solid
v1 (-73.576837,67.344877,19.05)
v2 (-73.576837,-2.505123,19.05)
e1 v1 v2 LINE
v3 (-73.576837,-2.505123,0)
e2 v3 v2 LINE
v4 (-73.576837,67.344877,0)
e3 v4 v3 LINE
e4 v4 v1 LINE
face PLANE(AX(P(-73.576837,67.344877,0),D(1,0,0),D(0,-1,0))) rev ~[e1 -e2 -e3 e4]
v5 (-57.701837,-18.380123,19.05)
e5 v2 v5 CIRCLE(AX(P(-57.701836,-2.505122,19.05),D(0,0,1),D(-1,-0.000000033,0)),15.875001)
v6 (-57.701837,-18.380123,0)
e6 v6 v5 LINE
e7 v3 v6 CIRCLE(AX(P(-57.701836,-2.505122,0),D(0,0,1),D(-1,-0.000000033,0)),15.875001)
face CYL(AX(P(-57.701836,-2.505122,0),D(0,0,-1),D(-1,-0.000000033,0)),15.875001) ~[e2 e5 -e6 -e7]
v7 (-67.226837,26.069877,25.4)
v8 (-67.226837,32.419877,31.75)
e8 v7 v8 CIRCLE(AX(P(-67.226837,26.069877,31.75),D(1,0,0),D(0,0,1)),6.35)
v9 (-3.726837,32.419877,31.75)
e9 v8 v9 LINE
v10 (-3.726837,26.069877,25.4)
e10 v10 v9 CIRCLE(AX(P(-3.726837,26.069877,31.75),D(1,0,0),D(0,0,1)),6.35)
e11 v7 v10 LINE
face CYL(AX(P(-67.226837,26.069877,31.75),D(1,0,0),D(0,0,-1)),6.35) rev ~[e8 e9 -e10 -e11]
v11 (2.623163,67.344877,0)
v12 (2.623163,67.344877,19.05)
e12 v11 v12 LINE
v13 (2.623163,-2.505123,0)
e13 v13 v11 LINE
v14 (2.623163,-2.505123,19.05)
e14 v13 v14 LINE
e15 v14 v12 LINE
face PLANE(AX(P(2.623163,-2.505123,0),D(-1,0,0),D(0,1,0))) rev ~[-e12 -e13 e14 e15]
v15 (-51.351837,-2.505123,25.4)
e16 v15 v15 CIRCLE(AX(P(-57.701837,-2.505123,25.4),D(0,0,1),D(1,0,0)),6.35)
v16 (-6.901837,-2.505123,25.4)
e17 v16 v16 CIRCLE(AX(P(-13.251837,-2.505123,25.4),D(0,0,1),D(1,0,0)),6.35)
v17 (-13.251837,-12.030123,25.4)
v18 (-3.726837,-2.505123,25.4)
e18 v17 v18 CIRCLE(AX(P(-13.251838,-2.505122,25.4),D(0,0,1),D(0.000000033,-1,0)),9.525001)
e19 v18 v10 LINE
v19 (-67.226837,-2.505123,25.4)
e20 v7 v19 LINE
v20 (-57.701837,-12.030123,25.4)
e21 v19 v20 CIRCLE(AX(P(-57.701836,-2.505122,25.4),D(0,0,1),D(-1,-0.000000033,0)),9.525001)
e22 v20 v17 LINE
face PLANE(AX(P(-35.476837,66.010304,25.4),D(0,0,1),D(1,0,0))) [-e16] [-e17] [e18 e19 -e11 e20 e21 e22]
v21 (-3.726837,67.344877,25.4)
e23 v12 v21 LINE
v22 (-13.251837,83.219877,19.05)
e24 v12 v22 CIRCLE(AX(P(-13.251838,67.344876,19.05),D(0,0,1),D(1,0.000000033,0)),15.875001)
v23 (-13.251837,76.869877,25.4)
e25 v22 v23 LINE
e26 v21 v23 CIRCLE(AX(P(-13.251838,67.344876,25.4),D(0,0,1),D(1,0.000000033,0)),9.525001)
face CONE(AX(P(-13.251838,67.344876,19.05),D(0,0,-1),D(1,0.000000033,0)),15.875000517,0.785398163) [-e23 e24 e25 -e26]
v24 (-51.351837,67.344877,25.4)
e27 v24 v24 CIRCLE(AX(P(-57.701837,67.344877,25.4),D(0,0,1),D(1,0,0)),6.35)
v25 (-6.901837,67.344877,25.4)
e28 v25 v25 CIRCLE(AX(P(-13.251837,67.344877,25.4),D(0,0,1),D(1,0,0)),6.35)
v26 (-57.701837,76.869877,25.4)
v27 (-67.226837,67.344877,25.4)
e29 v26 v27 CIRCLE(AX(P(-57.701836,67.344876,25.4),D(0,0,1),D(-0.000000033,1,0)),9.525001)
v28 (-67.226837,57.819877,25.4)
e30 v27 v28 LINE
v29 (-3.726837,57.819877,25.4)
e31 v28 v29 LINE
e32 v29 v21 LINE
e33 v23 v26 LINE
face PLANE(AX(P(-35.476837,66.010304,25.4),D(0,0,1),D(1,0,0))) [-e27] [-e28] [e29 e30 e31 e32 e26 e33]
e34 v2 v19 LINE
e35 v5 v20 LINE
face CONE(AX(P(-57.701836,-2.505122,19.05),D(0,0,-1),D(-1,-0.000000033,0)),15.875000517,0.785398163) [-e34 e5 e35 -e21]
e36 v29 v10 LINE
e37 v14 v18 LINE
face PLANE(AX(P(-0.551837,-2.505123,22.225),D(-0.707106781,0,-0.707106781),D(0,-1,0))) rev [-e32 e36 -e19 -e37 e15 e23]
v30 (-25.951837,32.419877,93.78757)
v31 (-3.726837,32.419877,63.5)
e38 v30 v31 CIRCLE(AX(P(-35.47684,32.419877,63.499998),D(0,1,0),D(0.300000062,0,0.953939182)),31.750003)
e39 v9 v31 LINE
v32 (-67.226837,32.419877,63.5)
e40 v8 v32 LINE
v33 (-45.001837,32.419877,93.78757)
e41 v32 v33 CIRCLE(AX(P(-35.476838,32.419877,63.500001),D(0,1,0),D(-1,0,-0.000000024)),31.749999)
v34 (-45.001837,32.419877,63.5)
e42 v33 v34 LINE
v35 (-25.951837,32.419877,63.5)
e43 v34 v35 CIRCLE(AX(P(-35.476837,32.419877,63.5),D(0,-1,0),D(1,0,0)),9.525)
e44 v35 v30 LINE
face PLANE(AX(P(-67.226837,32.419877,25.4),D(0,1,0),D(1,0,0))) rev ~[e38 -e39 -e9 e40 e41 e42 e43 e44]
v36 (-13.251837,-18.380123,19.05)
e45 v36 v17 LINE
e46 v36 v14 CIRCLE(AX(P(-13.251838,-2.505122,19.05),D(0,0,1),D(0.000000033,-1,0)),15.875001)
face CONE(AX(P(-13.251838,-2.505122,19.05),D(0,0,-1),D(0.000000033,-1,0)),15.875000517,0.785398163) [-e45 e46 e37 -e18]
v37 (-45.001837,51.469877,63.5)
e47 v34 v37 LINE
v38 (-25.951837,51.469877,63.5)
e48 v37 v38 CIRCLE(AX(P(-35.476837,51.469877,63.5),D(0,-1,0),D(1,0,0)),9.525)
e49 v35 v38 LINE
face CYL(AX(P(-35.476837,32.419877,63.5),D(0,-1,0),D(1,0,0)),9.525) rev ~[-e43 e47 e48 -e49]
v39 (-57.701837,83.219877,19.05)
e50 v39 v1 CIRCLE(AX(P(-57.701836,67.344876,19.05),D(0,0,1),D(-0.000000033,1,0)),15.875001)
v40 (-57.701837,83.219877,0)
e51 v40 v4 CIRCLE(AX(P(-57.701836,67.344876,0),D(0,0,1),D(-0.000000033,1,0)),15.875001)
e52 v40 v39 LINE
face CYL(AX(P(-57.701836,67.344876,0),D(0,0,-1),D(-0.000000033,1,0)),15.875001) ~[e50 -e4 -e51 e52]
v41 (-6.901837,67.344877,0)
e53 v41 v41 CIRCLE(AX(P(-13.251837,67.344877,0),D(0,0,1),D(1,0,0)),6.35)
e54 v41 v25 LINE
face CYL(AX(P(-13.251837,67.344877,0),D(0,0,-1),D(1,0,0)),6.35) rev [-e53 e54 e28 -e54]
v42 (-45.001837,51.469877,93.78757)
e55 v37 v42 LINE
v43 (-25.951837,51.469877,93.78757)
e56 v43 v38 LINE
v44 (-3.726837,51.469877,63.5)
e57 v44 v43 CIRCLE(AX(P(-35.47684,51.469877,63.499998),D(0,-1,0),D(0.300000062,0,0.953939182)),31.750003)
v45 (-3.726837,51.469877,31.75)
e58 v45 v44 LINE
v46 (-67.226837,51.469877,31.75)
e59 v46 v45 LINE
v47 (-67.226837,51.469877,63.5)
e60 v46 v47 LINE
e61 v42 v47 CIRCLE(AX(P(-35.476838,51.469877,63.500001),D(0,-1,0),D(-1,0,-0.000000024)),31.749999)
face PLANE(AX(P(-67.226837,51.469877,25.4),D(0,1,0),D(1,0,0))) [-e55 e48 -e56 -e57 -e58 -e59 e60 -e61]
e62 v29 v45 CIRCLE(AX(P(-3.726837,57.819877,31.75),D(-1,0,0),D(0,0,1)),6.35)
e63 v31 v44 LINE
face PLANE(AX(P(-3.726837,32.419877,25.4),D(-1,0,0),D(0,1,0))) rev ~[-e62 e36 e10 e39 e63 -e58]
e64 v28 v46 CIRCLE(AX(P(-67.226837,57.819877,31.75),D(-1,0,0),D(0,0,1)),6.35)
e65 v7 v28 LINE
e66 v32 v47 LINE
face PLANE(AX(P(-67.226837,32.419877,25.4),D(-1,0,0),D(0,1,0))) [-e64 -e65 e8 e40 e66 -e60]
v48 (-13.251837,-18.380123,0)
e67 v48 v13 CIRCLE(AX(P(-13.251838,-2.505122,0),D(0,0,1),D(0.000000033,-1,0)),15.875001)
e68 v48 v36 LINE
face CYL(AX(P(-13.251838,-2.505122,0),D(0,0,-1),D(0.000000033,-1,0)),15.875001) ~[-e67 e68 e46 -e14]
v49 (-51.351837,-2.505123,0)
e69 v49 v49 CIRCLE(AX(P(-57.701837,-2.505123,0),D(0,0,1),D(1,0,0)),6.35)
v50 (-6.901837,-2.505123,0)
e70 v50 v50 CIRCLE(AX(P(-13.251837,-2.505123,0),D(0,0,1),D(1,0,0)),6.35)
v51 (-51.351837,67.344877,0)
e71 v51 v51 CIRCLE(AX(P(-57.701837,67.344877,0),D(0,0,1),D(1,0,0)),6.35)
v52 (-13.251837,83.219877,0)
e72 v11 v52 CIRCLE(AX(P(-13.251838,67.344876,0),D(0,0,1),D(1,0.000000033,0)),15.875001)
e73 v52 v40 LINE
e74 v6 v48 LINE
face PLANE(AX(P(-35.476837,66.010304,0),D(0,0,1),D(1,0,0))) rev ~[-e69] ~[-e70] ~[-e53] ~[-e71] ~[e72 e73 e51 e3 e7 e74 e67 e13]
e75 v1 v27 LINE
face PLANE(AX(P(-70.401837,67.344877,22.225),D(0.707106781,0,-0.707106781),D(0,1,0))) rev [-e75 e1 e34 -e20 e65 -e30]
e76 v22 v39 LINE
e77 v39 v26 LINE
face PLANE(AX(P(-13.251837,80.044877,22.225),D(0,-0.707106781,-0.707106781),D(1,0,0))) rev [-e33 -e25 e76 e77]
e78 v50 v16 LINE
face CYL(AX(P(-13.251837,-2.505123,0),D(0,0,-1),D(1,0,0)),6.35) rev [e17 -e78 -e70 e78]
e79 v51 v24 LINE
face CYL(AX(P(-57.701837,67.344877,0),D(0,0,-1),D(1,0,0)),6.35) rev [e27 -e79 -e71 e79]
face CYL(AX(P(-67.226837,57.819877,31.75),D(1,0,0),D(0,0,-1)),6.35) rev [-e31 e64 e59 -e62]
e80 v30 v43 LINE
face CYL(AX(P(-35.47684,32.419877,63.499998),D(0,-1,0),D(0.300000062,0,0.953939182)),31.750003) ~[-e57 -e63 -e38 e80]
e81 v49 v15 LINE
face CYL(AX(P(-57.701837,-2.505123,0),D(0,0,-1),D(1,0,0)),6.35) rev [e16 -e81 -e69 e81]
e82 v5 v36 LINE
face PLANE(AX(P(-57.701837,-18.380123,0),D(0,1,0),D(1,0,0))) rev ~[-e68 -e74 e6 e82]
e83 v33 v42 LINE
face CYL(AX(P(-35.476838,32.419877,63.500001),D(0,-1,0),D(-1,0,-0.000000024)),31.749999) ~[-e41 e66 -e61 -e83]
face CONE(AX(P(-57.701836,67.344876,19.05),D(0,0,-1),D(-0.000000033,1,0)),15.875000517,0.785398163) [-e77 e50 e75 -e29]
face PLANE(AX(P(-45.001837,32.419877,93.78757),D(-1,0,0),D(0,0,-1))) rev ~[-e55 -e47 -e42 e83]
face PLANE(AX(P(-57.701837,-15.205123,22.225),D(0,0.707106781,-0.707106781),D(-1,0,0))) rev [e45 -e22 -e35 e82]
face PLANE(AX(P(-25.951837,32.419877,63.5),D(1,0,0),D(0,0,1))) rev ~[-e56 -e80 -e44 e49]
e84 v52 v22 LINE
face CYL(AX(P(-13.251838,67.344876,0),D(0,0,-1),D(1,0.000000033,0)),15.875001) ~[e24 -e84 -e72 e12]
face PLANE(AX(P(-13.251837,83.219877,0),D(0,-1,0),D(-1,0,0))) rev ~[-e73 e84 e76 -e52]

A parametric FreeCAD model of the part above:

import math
import FreeCAD as App
import Part
import Sketcher
from FreeCAD import Vector
Q = App.Units.Quantity


def edges_at(feature, points):
    """Names of the edges that pass closest to the given points."""
    edges = feature.Shape.Edges
    near = lambda p: min(range(len(edges)), key=lambda i: edges[i].distToShape(Part.Vertex(*p))[0])
    return sorted({f"Edge{near(p) + 1}" for p in points})

doc = App.newDocument("Part")
params = doc.addObject("Spreadsheet::Sheet", "Params")
for row, (alias, value) in enumerate([
    ("sketch1_diameter", "0.5 in"),
    ("sketch1_radius", "0.625 in"),
    ("sketch1_width", "1.75 in"),
    ("sketch1_height", "2.75 in"),
    ("pad1_length", "1 in"),
    ("chamfer_size", "0.25 in"),
    ("sketch2_width", "2.5 in"),
    ("sketch2_height", "0.75 in"),
    ("pad2_length", "3.75 in"),
    ("sketch3_radius", "1.2500001 in"),
    ("sketch3_radius2", "0.375 in"),
    ("sketch3_height", "2.25 in"),
    ("pocket1_length", "1 in"),
    ("fillet_radius", "0.25 in"),
], start=1):
    params.set(f"A{row}", alias)
    params.set(f"B{row}", "=" + value)
    params.setAlias(f"B{row}", alias)

body = doc.addObject("PartDesign::Body", "Body")

sketch1 = body.newObject("Sketcher::SketchObject", "Sketch")
sketch1.AttachmentSupport = (doc.getObject("XY_Plane"), [""])
sketch1.MapMode = "FlatFace"
sketch1.addGeometry([
    Part.LineSegment(Vector(-13.251837, 83.219877, 0), Vector(-57.701837, 83.219877, 0)),
    Part.ArcOfCircle(Part.Circle(Vector(-57.701836, 67.344876, 0), Vector(0, 0, 1), 15.875001), math.radians(90.000002), math.radians(179.999998)),
    Part.LineSegment(Vector(-73.576837, 67.344877, 0), Vector(-73.576837, -2.505123, 0)),
    Part.ArcOfCircle(Part.Circle(Vector(-57.701836, -2.505122, 0), Vector(0, 0, 1), 15.875001), math.radians(-179.999998), math.radians(-90.000002)),
    Part.LineSegment(Vector(-57.701837, -18.380123, 0), Vector(-13.251837, -18.380123, 0)),
    Part.ArcOfCircle(Part.Circle(Vector(-13.251838, -2.505122, 0), Vector(0, 0, 1), 15.875001), math.radians(-89.999998), math.radians(-0.000002)),
    Part.LineSegment(Vector(2.623163, -2.505123, 0), Vector(2.623163, 67.344877, 0)),
    Part.ArcOfCircle(Part.Circle(Vector(-13.251838, 67.344876, 0), Vector(0, 0, 1), 15.875001), math.radians(0.000002), math.radians(89.999998)),
    Part.Circle(Vector(-57.701837, -2.505123, 0), Vector(0, 0, 1), 6.35),
    Part.Circle(Vector(-13.251837, -2.505123, 0), Vector(0, 0, 1), 6.35),
    Part.Circle(Vector(-57.701837, 67.344877, 0), Vector(0, 0, 1), 6.35),
    Part.Circle(Vector(-13.251837, 67.344877, 0), Vector(0, 0, 1), 6.35),
], False)
sketch1.addConstraint([
    Sketcher.Constraint("Tangent", 0, 2, 1, 1),
    Sketcher.Constraint("Tangent", 1, 2, 2, 1),
    Sketcher.Constraint("Tangent", 2, 2, 3, 1),
    Sketcher.Constraint("Tangent", 3, 2, 4, 1),
    Sketcher.Constraint("Tangent", 4, 2, 5, 1),
    Sketcher.Constraint("Tangent", 5, 2, 6, 1),
    Sketcher.Constraint("Tangent", 6, 2, 7, 1),
    Sketcher.Constraint("Tangent", 7, 2, 0, 1),
    Sketcher.Constraint("Horizontal", 0),
    Sketcher.Constraint("Vertical", 2),
    Sketcher.Constraint("Horizontal", 4),
    Sketcher.Constraint("Vertical", 6),
    Sketcher.Constraint("Coincident", 8, 3, 3, 3),
    Sketcher.Constraint("Coincident", 9, 3, 5, 3),
    Sketcher.Constraint("Coincident", 10, 3, 1, 3),
    Sketcher.Constraint("Coincident", 11, 3, 7, 3),
    Sketcher.Constraint("Equal", 1, 3),
    Sketcher.Constraint("Equal", 3, 5),
    Sketcher.Constraint("Equal", 5, 7),
    Sketcher.Constraint("Equal", 8, 9),
    Sketcher.Constraint("Equal", 9, 10),
    Sketcher.Constraint("Equal", 10, 11),
    Sketcher.Constraint("Diameter", 8, Q("0.5 in")),
    Sketcher.Constraint("Radius", 1, Q("0.625 in")),
    Sketcher.Constraint("DistanceX", 0, 2, 0, 1, Q("1.75 in")),
    Sketcher.Constraint("DistanceY", 2, 2, 2, 1, Q("2.75 in")),
    Sketcher.Constraint("DistanceX", 1, 3, -1, 1, Q("57.701836 mm")),
    Sketcher.Constraint("DistanceY", -1, 1, 1, 3, Q("67.344876 mm")),
])
sketch1.setExpression("Constraints[22]", "Params.sketch1_diameter")
sketch1.setExpression("Constraints[23]", "Params.sketch1_radius")
sketch1.setExpression("Constraints[24]", "Params.sketch1_width")
sketch1.setExpression("Constraints[25]", "Params.sketch1_height")
pad1 = body.newObject("PartDesign::Pad", "Pad")
pad1.Profile = sketch1
pad1.setExpression("Length", "Params.pad1_length")
doc.recompute()

chamfer = body.newObject("PartDesign::Chamfer", "Chamfer")
chamfer.Base = (pad1, edges_at(pad1, [(-35.477, 83.22, 25.4)]))
chamfer.setExpression("Size", "Params.chamfer_size")

sketch2 = body.newObject("Sketcher::SketchObject", "Sketch001")
sketch2.AttachmentSupport = (doc.getObject("XY_Plane"), [""])
sketch2.MapMode = "FlatFace"
sketch2.AttachmentOffset = App.Placement(Vector(0, 0, 1 * 25.4), App.Rotation())
sketch2.addGeometry([
    Part.LineSegment(Vector(-67.226837, 51.469877, 0), Vector(-67.226837, 32.419877, 0)),
    Part.LineSegment(Vector(-67.226837, 32.419877, 0), Vector(-3.726837, 32.419877, 0)),
    Part.LineSegment(Vector(-3.726837, 32.419877, 0), Vector(-3.726837, 51.469877, 0)),
    Part.LineSegment(Vector(-3.726837, 51.469877, 0), Vector(-67.226837, 51.469877, 0)),
], False)
sketch2.addConstraint([
    Sketcher.Constraint("Coincident", 0, 2, 1, 1),
    Sketcher.Constraint("Coincident", 1, 2, 2, 1),
    Sketcher.Constraint("Coincident", 2, 2, 3, 1),
    Sketcher.Constraint("Coincident", 3, 2, 0, 1),
    Sketcher.Constraint("Vertical", 0),
    Sketcher.Constraint("Horizontal", 1),
    Sketcher.Constraint("Vertical", 2),
    Sketcher.Constraint("Horizontal", 3),
    Sketcher.Constraint("DistanceX", 1, 1, 1, 2, Q("2.5 in")),
    Sketcher.Constraint("DistanceY", 0, 2, 0, 1, Q("0.75 in")),
    Sketcher.Constraint("DistanceX", 0, 2, -1, 1, Q("67.226837 mm")),
    Sketcher.Constraint("DistanceY", -1, 1, 0, 2, Q("32.419877 mm")),
])
sketch2.setExpression("Constraints[8]", "Params.sketch2_width")
sketch2.setExpression("Constraints[9]", "Params.sketch2_height")
pad2 = body.newObject("PartDesign::Pad", "Pad001")
pad2.Profile = sketch2
pad2.setExpression("Length", "Params.pad2_length")

sketch3 = body.newObject("Sketcher::SketchObject", "Sketch002")
sketch3.AttachmentSupport = (doc.getObject("XZ_Plane"), [""])
sketch3.MapMode = "FlatFace"
sketch3.AttachmentOffset = App.Placement(Vector(0, 0, -32.419877), App.Rotation())
sketch3.addGeometry([
    Part.ArcOfCircle(Part.Circle(Vector(-35.47684, 63.499998, 0), Vector(0, 0, 1), 31.750003), math.radians(0.000003), math.radians(72.542393)),
    Part.LineSegment(Vector(-3.726837, 63.5, 0), Vector(-3.726837, 120.65, 0)),
    Part.LineSegment(Vector(-3.726837, 120.65, 0), Vector(-67.226837, 120.65, 0)),
    Part.LineSegment(Vector(-67.226837, 120.65, 0), Vector(-67.226837, 63.5, 0)),
    Part.ArcOfCircle(Part.Circle(Vector(-35.476838, 63.500001, 0), Vector(0, 0, 1), 31.749999), math.radians(107.457602), math.radians(180.000001)),
    Part.LineSegment(Vector(-45.001837, 93.78757, 0), Vector(-45.001837, 63.5, 0)),
    Part.ArcOfCircle(Part.Circle(Vector(-35.476837, 63.5, 0), Vector(0, 0, 1), 9.525), math.radians(180), math.radians(360)),
    Part.LineSegment(Vector(-25.951837, 63.5, 0), Vector(-25.951837, 93.78757, 0)),
], False)
sketch3.addConstraint([
    Sketcher.Constraint("Tangent", 0, 1, 1, 1),
    Sketcher.Constraint("Coincident", 1, 2, 2, 1),
    Sketcher.Constraint("Coincident", 2, 2, 3, 1),
    Sketcher.Constraint("Tangent", 3, 2, 4, 2),
    Sketcher.Constraint("Coincident", 4, 1, 5, 1),
    Sketcher.Constraint("Tangent", 5, 2, 6, 1),
    Sketcher.Constraint("Tangent", 6, 2, 7, 1),
    Sketcher.Constraint("Coincident", 7, 2, 0, 2),
    Sketcher.Constraint("Vertical", 1),
    Sketcher.Constraint("Horizontal", 2),
    Sketcher.Constraint("Vertical", 3),
    Sketcher.Constraint("Vertical", 5),
    Sketcher.Constraint("Vertical", 7),
    Sketcher.Constraint("Coincident", 4, 3, 0, 3),
    Sketcher.Constraint("Coincident", 6, 3, 0, 3),
    Sketcher.Constraint("Horizontal", 4, 1, 7, 2),
    Sketcher.Constraint("Radius", 0, Q("1.2500001 in")),
    Sketcher.Constraint("Radius", 6, Q("0.375 in")),
    Sketcher.Constraint("DistanceY", 1, 1, 1, 2, Q("2.25 in")),
    Sketcher.Constraint("DistanceY", -1, 1, 0, 3, Q("2.4999999 in")),
    Sketcher.Constraint("DistanceX", 0, 3, -1, 1, Q("35.47684 mm")),
])
sketch3.setExpression("Constraints[16]", "Params.sketch3_radius")
sketch3.setExpression("Constraints[17]", "Params.sketch3_radius2")
sketch3.setExpression("Constraints[18]", "Params.sketch3_height")
pocket1 = body.newObject("PartDesign::Pocket", "Pocket")
pocket1.Profile = sketch3
pocket1.setExpression("Length", "Params.pocket1_length")
doc.recompute()

fillet = body.newObject("PartDesign::Fillet", "Fillet")
fillet.Base = (pocket1, edges_at(pocket1, [(-35.477, 51.47, 25.4), (-35.477, 32.42, 25.4)]))
fillet.setExpression("Radius", "Params.fillet_radius")

doc.recompute()
